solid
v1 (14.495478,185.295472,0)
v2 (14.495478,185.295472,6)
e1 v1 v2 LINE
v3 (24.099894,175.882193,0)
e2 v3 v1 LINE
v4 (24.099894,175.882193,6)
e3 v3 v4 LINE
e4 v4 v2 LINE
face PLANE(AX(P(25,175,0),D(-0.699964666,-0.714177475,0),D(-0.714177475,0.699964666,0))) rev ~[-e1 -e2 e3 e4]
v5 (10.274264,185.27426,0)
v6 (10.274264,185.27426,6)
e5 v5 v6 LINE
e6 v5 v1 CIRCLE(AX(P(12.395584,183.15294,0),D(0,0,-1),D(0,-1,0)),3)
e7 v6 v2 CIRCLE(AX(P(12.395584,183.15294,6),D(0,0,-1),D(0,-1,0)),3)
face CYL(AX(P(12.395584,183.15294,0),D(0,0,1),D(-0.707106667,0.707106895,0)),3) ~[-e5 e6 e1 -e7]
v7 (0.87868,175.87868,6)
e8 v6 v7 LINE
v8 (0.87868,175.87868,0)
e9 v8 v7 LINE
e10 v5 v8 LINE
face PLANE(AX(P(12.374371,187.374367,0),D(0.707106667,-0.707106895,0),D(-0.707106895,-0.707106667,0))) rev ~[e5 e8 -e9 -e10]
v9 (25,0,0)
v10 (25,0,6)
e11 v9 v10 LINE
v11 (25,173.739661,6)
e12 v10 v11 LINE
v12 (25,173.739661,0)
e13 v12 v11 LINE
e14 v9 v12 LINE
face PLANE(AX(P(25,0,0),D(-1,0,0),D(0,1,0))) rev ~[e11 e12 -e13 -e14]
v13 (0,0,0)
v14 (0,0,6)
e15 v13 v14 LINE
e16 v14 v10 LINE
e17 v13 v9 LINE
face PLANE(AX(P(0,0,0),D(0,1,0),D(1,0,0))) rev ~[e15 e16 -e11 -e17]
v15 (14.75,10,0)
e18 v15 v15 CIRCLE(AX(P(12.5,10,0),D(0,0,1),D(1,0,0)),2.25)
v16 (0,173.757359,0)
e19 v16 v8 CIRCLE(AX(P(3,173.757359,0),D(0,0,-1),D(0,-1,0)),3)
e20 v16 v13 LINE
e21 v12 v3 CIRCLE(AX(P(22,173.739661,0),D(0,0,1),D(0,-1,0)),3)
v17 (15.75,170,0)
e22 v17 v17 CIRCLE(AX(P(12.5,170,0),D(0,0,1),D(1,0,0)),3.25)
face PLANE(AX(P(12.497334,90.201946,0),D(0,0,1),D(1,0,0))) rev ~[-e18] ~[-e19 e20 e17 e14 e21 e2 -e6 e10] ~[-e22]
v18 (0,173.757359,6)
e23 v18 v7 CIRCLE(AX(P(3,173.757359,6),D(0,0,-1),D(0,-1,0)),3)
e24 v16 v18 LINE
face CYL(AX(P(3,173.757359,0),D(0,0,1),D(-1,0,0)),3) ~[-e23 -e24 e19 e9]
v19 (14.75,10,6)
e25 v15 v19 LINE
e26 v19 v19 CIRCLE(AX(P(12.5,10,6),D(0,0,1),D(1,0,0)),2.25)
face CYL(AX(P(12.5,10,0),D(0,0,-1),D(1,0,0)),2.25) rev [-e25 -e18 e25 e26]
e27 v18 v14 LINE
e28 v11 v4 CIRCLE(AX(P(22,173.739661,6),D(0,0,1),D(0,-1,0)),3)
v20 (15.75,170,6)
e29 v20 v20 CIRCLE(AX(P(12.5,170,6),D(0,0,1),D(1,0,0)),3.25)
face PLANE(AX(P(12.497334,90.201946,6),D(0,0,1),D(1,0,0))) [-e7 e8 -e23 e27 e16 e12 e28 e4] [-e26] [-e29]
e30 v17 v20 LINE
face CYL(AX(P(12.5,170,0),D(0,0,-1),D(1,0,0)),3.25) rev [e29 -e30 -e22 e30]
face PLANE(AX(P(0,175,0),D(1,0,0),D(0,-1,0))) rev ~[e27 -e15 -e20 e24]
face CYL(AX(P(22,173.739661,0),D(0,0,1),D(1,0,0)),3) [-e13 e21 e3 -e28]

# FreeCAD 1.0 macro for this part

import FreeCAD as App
import Part
import Sketcher
Q = App.Units.Quantity


def edges_at(feature, points):
    """Names of the edges that pass closest to the given points."""
    edges = feature.Shape.Edges
    near = lambda p: min(range(len(edges)), key=lambda i: edges[i].distToShape(Part.Vertex(*p))[0])
    return sorted({f"Edge{near(p) + 1}" for p in points})


def add_polygon(sketch, points):
    """Adds a closed chain of lines whose ends are joined by coincident constraints."""
    first, n = sketch.GeometryCount, len(points)
    for a, b in zip(points, points[1:] + points[:1]):
        sketch.addGeometry(Part.LineSegment(App.Vector(*a, 0), App.Vector(*b, 0)), False)
    for i in range(n):
        sketch.addConstraint(Sketcher.Constraint("Coincident", first + i, 2, first + (i + 1) % n, 1))

doc = App.newDocument("Part")
body = doc.addObject("PartDesign::Body", "Body")

sketch1 = doc.addObject("Sketcher::SketchObject", "Sketch")
body.addObject(sketch1)
sketch1.AttachmentSupport = (doc.XY_Plane, [""])
sketch1.MapMode = "FlatFace"
add_polygon(sketch1, [(0, 0), (25, 0), (25, 175), (12.374371, 187.374367), (0, 175)])
sketch1.addGeometry(Part.Circle(App.Vector(12.5, 10, 0), App.Vector(0, 0, 1), 2.25), False)
sketch1.addGeometry(Part.Circle(App.Vector(12.5, 170, 0), App.Vector(0, 0, 1), 3.25), False)
sketch1.addConstraint([
    Sketcher.Constraint("Horizontal", 0),
    Sketcher.Constraint("Vertical", 1),
    Sketcher.Constraint("Vertical", 4),
    Sketcher.Constraint("Coincident", 4, 2, -1, 1),
    Sketcher.Constraint("Horizontal", 1, 2, 3, 2),
    Sketcher.Constraint("Vertical", 5, 3, 6, 3),
    Sketcher.Constraint("Diameter", 5, Q("4.5 mm")),
    Sketcher.Constraint("Diameter", 6, Q("6.5 mm")),
    Sketcher.Constraint("DistanceX", 0, 1, 0, 2, Q("25 mm")),
    Sketcher.Constraint("DistanceY", 1, 1, 1, 2, Q("175 mm")),
    Sketcher.Constraint("Angle", 3, Q("-135.000009 deg")),
    Sketcher.Constraint("DistanceY", -1, 1, 5, 3, Q("10 mm")),
    Sketcher.Constraint("DistanceY", -1, 1, 6, 3, Q("170 mm")),
    Sketcher.Constraint("Distance", 3, Q("17.5 mm")),
    Sketcher.Constraint("DistanceX", -1, 1, 5, 3, Q("12.5 mm")),
])
pad1 = doc.addObject("PartDesign::Pad", "Pad")
body.addObject(pad1)
pad1.Profile = sketch1
pad1.Length = 6
doc.recompute()

fillet = doc.addObject("PartDesign::Fillet", "Fillet")
body.addObject(fillet)
fillet.Base = (pad1, edges_at(pad1, [(12.374, 187.374, 3), (25, 175, 3), (0, 175, 3)]))
fillet.Radius = 3

doc.recompute()
